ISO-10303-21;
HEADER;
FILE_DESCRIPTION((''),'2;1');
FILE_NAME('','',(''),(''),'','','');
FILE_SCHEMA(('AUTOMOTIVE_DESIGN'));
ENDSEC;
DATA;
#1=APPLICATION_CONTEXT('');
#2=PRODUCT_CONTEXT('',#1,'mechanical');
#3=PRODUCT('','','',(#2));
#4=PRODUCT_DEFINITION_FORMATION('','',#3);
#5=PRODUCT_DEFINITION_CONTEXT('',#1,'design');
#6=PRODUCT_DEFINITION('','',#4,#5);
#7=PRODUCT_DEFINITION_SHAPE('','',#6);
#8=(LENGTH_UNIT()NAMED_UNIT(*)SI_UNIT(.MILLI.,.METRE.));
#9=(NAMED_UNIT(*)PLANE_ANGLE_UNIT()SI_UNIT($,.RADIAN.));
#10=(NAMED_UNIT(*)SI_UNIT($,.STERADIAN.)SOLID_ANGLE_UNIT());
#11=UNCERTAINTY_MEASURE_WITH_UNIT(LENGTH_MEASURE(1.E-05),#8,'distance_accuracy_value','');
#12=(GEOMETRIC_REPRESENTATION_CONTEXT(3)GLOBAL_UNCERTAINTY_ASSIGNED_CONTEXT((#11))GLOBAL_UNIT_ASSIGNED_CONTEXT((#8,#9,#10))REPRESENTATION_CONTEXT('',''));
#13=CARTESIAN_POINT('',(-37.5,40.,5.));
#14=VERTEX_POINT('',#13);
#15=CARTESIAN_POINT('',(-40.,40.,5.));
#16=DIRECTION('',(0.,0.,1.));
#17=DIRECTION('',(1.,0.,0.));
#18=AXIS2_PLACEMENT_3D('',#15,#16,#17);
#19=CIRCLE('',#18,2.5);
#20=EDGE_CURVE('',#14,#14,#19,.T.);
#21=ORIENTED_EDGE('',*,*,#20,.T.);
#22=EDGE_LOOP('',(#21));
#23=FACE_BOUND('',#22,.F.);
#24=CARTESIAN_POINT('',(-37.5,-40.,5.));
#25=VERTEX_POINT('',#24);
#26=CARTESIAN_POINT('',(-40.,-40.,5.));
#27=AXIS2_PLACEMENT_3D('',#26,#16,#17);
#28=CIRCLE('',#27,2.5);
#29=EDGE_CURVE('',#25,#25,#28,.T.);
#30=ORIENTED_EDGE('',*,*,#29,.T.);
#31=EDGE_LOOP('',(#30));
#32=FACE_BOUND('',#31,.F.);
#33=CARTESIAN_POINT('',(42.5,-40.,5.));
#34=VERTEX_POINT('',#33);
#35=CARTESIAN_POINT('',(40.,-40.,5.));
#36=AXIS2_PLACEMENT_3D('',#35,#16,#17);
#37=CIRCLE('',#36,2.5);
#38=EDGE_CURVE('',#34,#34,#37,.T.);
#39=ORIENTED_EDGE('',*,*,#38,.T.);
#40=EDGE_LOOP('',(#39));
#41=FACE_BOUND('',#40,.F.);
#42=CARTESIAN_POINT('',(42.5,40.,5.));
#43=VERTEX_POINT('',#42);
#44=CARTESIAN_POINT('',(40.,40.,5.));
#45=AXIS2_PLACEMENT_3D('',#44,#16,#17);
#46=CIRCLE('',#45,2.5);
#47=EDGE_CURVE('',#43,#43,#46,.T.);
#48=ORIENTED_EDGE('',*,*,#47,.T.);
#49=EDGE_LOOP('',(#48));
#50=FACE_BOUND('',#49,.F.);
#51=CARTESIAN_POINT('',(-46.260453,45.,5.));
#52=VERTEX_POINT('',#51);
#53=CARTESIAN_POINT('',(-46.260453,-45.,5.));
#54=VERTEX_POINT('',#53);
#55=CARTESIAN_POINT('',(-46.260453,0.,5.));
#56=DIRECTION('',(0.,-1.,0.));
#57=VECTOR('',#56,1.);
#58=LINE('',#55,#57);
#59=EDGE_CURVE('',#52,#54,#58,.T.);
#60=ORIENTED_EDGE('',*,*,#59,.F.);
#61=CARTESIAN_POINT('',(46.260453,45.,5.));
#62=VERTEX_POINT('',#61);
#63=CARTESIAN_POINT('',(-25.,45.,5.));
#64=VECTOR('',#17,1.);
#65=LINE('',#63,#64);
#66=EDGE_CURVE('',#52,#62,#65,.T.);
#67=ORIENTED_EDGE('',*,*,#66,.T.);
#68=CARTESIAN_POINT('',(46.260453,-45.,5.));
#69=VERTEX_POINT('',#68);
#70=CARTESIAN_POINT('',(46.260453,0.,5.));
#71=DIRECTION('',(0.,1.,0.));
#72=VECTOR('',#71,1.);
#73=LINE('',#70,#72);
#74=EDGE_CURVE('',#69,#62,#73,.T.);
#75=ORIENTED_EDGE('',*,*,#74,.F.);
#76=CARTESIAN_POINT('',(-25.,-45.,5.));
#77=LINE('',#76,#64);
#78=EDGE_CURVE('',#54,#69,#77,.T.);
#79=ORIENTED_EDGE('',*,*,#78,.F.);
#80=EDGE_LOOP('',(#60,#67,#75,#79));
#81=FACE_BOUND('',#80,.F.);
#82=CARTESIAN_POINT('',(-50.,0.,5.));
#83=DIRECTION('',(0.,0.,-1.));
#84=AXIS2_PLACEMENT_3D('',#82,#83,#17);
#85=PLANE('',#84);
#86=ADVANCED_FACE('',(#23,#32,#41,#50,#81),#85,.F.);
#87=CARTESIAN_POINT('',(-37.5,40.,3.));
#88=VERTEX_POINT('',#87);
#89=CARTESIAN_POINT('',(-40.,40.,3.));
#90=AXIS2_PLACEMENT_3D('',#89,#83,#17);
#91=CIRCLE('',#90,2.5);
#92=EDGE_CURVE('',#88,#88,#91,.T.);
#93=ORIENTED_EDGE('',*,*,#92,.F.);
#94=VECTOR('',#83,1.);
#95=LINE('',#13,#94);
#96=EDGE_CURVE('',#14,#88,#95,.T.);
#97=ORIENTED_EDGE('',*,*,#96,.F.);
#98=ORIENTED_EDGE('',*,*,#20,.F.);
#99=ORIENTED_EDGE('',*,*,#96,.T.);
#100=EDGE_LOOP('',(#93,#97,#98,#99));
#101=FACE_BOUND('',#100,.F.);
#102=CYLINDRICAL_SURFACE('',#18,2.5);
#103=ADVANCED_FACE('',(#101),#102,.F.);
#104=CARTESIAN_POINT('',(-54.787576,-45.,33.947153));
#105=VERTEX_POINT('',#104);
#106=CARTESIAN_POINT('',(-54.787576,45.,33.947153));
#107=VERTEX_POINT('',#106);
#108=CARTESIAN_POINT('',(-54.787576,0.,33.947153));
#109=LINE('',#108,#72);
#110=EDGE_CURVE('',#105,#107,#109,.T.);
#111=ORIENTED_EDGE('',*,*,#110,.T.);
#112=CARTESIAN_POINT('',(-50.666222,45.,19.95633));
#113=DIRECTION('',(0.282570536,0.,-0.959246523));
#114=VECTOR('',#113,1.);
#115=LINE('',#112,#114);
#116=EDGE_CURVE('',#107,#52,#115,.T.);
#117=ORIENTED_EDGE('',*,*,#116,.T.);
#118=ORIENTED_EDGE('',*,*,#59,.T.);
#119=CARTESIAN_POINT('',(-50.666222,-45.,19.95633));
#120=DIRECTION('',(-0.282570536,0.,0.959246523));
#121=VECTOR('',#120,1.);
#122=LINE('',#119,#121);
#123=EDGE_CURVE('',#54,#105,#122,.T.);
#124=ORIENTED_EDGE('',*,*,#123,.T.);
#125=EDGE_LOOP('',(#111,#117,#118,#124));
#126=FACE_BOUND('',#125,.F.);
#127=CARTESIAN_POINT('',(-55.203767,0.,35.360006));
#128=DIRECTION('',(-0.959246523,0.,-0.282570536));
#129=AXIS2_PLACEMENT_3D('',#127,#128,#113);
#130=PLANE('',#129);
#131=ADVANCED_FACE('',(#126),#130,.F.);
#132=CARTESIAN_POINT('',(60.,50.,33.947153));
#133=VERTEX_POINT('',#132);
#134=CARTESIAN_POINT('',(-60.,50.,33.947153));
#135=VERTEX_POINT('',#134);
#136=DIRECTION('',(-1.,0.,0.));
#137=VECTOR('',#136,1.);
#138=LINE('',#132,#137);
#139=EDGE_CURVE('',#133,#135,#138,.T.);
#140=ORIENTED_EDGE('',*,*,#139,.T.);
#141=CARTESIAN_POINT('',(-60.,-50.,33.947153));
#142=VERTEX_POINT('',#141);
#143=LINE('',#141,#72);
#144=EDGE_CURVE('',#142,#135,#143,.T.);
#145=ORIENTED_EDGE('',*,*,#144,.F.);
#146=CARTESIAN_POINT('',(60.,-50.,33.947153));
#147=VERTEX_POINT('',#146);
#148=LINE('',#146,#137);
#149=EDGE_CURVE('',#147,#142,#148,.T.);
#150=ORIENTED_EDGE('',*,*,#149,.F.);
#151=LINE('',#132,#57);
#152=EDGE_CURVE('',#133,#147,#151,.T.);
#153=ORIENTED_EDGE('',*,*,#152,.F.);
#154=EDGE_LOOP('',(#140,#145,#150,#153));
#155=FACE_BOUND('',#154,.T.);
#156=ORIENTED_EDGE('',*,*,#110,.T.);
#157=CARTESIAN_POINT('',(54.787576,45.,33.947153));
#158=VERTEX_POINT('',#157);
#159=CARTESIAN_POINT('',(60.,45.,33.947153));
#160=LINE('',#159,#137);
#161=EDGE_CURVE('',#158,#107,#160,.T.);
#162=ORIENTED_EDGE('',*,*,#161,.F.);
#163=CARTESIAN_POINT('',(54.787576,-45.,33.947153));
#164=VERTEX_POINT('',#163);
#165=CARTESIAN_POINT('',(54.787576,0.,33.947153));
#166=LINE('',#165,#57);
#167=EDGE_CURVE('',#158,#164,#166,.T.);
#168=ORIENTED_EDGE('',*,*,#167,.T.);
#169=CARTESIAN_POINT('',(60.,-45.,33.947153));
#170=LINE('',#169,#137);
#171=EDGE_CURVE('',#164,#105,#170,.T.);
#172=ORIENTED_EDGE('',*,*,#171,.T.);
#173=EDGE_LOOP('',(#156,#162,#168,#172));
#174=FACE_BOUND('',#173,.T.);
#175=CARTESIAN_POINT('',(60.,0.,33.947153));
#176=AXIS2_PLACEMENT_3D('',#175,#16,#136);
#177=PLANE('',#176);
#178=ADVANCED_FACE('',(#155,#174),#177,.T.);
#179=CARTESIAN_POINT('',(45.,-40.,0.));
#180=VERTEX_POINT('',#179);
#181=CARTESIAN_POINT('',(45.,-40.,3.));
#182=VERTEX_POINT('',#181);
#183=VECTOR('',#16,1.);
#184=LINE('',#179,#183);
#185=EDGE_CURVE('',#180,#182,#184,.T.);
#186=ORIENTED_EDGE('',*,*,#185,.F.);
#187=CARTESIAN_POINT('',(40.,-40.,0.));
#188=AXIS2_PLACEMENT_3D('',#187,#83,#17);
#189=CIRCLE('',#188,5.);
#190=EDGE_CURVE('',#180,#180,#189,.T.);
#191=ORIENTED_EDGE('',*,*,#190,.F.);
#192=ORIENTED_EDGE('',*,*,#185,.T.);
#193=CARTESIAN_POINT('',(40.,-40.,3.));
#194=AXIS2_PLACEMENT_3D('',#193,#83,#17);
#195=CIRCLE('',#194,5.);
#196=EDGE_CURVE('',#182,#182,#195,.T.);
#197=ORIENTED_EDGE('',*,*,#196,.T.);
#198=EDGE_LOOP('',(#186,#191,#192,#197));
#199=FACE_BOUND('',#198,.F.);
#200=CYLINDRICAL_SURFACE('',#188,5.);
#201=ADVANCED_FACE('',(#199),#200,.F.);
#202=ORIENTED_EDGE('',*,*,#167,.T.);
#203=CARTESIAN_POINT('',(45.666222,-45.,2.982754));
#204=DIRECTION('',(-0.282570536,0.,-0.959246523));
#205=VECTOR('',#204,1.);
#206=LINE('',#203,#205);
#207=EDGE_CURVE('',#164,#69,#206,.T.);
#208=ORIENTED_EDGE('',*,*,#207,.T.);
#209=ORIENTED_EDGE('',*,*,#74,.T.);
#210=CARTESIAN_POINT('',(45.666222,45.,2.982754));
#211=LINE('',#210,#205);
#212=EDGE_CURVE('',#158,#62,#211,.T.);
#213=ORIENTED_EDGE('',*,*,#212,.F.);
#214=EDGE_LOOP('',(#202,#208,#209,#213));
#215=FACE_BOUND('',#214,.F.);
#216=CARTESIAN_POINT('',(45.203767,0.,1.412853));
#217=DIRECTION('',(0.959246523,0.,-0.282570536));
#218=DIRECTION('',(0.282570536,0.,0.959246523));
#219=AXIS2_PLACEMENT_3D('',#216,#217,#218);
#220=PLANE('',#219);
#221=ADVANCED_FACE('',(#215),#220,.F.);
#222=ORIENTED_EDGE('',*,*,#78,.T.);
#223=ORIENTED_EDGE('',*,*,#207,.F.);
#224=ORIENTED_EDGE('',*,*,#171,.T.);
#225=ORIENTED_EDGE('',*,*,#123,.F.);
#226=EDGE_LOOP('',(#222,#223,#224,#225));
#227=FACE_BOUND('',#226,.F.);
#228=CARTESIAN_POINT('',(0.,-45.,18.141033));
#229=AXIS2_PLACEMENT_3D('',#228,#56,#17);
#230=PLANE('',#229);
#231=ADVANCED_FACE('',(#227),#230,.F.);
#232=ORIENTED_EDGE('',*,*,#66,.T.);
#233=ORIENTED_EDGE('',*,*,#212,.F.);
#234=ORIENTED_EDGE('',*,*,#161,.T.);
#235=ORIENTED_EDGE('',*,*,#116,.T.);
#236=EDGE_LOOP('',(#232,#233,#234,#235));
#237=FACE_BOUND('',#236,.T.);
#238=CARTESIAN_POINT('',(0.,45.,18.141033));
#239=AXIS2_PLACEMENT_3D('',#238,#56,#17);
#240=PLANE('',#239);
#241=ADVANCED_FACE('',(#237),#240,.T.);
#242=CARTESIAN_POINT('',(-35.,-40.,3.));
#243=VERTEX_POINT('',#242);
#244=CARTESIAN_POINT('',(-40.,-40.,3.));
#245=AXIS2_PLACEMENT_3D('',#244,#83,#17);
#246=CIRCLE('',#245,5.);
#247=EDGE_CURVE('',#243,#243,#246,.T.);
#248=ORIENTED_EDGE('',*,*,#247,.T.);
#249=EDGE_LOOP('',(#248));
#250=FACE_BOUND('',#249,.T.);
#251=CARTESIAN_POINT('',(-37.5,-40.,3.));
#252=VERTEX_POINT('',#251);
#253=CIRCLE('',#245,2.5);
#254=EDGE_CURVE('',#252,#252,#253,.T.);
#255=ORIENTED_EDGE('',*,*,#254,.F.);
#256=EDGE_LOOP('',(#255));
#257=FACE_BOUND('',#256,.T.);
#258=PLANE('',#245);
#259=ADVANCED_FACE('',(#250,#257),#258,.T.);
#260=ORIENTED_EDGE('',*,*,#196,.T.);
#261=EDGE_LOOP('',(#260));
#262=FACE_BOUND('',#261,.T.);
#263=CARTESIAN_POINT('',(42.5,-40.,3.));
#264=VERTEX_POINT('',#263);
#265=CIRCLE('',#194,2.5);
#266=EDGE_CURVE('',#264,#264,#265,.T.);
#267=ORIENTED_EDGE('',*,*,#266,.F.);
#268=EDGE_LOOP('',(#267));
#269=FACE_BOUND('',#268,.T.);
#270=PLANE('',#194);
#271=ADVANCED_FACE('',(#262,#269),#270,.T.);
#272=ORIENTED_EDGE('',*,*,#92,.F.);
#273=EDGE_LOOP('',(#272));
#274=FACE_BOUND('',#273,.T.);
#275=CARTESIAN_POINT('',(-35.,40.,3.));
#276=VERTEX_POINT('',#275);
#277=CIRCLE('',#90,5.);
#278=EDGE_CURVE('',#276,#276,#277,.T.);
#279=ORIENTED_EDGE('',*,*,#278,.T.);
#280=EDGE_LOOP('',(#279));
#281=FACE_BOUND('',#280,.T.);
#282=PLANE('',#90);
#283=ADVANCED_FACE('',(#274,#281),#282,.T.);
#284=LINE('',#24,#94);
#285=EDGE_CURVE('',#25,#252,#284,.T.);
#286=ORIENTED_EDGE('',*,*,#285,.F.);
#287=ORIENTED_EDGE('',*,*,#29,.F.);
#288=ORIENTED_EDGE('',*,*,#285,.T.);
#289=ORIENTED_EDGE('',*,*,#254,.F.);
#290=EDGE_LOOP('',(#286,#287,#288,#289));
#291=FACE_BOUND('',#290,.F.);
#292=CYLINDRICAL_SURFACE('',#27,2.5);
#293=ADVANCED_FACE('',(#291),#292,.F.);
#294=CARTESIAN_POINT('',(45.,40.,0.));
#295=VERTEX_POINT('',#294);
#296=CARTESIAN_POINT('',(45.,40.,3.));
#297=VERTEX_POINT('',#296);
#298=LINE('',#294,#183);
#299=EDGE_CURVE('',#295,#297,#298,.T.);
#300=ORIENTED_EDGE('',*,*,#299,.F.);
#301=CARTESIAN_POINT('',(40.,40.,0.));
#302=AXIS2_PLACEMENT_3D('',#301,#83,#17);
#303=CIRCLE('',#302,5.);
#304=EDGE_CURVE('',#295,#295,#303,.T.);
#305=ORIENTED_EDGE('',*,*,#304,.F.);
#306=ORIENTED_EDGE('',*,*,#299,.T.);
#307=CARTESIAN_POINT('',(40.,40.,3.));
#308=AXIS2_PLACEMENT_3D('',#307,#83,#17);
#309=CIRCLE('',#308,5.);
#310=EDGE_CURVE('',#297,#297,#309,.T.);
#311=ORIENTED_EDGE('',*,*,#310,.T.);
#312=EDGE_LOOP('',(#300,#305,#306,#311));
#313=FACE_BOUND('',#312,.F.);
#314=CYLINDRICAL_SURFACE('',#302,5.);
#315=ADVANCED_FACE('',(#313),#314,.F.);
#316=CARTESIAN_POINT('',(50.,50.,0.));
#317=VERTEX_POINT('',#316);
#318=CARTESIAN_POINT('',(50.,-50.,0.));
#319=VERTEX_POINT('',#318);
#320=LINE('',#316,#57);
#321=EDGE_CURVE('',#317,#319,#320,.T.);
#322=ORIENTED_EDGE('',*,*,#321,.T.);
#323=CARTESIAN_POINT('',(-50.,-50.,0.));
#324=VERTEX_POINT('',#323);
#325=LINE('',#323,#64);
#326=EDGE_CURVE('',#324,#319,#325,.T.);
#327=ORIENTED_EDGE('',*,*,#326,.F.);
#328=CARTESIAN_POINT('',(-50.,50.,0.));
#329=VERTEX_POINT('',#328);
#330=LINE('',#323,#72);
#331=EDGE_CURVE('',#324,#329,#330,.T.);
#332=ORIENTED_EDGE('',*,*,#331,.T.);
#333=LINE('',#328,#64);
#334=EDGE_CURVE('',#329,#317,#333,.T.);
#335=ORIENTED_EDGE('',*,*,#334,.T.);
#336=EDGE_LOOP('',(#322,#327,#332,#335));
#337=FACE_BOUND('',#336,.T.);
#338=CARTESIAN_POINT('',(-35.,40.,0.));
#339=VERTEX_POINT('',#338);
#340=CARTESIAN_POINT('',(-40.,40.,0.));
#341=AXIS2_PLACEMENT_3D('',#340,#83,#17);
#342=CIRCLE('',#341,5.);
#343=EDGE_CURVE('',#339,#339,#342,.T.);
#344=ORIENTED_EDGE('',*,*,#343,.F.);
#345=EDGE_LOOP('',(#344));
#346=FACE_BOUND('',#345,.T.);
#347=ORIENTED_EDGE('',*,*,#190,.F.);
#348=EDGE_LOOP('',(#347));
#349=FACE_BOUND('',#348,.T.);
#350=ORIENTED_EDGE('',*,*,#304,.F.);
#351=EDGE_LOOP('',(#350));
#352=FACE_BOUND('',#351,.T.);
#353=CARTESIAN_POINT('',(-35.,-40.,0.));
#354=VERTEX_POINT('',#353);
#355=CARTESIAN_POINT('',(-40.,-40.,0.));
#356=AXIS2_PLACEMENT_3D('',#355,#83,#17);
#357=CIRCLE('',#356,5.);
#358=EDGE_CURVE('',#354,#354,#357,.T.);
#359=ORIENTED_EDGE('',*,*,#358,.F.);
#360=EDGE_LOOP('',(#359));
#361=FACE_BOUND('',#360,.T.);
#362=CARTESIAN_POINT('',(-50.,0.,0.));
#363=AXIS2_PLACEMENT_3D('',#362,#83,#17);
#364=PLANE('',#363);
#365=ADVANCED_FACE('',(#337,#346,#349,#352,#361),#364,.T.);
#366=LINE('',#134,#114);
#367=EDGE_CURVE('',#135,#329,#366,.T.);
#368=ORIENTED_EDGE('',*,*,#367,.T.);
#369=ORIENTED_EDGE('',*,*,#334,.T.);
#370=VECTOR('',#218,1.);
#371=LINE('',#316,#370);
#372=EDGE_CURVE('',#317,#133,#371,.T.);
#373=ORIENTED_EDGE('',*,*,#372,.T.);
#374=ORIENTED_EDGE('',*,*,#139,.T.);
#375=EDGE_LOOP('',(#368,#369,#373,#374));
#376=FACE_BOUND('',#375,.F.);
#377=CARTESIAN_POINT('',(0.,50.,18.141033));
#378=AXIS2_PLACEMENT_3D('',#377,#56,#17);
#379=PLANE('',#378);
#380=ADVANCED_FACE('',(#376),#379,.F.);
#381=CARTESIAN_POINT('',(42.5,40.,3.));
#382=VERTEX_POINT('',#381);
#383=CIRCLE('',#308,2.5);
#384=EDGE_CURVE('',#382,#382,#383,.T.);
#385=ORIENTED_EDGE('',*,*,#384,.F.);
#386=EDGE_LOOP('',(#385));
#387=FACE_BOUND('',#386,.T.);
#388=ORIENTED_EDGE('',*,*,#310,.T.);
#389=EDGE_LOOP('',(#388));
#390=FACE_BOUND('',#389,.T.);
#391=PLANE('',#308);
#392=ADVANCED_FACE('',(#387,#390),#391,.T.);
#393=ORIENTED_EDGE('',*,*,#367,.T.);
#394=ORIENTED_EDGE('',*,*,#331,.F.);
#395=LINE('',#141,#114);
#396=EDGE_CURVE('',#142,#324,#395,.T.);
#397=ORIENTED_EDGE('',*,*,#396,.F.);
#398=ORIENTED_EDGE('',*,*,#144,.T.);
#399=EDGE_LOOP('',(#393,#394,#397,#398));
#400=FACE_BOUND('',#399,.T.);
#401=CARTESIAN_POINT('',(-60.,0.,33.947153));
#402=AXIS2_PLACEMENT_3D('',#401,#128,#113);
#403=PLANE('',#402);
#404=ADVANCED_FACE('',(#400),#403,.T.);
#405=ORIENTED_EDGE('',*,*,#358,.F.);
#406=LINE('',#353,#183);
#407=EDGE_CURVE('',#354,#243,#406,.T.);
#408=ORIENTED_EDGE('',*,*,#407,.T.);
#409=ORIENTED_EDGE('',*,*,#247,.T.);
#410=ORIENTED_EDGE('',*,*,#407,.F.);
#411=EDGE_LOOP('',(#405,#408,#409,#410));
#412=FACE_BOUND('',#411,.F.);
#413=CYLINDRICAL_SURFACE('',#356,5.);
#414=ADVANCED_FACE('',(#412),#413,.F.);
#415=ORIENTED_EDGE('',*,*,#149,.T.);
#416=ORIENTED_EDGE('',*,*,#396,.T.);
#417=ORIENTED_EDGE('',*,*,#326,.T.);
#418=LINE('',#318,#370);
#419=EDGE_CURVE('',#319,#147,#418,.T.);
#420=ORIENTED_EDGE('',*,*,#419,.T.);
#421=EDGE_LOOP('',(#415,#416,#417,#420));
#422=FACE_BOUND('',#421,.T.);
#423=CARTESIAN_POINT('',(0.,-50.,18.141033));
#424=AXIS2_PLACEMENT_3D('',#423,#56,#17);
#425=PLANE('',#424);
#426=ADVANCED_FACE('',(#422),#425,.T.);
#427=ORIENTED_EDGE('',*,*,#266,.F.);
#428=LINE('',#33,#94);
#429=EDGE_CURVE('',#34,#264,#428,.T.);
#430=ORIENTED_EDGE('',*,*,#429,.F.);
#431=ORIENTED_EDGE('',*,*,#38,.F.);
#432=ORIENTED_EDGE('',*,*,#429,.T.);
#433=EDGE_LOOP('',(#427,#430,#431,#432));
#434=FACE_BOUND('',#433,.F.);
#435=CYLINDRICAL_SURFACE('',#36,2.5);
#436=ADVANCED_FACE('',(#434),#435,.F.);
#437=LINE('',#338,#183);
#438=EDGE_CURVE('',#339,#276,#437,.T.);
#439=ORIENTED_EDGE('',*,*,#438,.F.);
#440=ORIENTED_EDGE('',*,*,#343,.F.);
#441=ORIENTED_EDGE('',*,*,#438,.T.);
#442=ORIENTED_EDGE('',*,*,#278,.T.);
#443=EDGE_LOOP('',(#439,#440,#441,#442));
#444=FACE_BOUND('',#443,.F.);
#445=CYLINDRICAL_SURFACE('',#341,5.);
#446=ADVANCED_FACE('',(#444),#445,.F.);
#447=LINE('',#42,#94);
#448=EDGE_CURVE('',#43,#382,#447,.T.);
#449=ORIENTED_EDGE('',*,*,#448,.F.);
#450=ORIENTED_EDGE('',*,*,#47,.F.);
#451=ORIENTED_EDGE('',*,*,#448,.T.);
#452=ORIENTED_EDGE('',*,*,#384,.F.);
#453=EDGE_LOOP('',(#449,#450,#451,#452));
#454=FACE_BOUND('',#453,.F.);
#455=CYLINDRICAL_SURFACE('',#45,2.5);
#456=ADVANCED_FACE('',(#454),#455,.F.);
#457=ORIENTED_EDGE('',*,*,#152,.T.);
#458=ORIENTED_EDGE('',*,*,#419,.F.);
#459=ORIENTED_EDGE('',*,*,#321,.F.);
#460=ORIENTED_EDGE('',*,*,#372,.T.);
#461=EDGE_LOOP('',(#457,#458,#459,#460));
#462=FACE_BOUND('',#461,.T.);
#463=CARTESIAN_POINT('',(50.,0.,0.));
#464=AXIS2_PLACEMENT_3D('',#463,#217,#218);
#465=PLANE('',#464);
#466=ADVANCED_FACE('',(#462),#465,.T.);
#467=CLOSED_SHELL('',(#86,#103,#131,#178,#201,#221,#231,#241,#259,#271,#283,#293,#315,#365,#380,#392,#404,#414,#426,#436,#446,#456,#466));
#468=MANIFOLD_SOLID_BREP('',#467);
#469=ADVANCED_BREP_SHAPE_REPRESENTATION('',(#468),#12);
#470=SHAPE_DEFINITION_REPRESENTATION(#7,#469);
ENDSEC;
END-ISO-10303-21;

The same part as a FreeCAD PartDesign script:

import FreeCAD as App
import Part
import Sketcher

V = App.Vector


def faces_at(feature, points):
    """Names of the faces that lie closest to the given points."""
    faces = feature.Shape.Faces
    near = lambda p: min(range(len(faces)), key=lambda i: faces[i].distToShape(Part.Vertex(*p))[0])
    return sorted({f"Face{near(p) + 1}" for p in points})


def add_polygon(sketch, points):
    """Adds a closed chain of lines whose ends are joined by coincident constraints."""
    first, n = sketch.GeometryCount, len(points)
    for a, b in zip(points, points[1:] + points[:1]):
        sketch.addGeometry(Part.LineSegment(App.Vector(*a, 0), App.Vector(*b, 0)), False)
    for i in range(n):
        sketch.addConstraint(Sketcher.Constraint("Coincident", first + i, 2, first + (i + 1) % n, 1))

doc = App.newDocument("Part")
params = doc.addObject("Spreadsheet::Sheet", "Params")
for row, (alias, value) in enumerate([
    ("sketch1_width", "100 mm"),
    ("sketch1_width2", "120 mm"),
    ("pad1_length", "50 mm"),
    ("pad1_length2", "50 mm"),
    ("thickness_wall", "5 mm"),
    ("sketch2_diameter", "5 mm"),
    ("sketch3_diameter", "10 mm"),
    ("sketch3_diameter2", "5 mm"),
    ("pocket2_length", "3 mm"),
], start=1):
    params.set(f"A{row}", alias)
    params.set(f"B{row}", "=" + value)
    params.setAlias(f"B{row}", alias)

body = doc.addObject("PartDesign::Body", "Body")

# Sketch on XZ plane
sketch1 = body.newObject("Sketcher::SketchObject", "Sketch")
sketch1.AttachmentSupport = (doc.getObject("XZ_Plane"), [""])
sketch1.MapMode = "FlatFace"
add_polygon(sketch1, [(-50, 0), (50, 0), (60, 34), (-60, 34)])  # lines 0-3
sketch1.addConstraint([
    Sketcher.Constraint("Horizontal", 0),
    Sketcher.Constraint("Horizontal", 2),
    Sketcher.Constraint("Symmetric", 0, 2, 3, 2, -1, 1),
    Sketcher.Constraint("Equal", 1, 3),
    Sketcher.Constraint("DistanceX", 0, 1, 0, 2, 100.0),
    Sketcher.Constraint("DistanceX", 2, 2, 2, 1, 120.0),
    Sketcher.Constraint("Distance", 1, 35.389394),
])
sketch1.setExpression("Constraints[8]", "Params.sketch1_width")
sketch1.setExpression("Constraints[9]", "Params.sketch1_width2")
pad1 = body.newObject("PartDesign::Pad", "Pad")
pad1.Profile = sketch1
pad1.Type = "TwoLengths"
pad1.setExpression("Length", "Params.pad1_length")
pad1.setExpression("Length2", "Params.pad1_length2")
doc.recompute()

thickness = body.newObject("PartDesign::Thickness", "Thickness")
thickness.Base = (pad1, faces_at(pad1, [(0, 0, 33.947)]))
thickness.setExpression("Value", "Params.thickness_wall")
thickness.Reversed = True
thickness.Join = "Arc"

# Sketch on XY plane
sketch2 = body.newObject("Sketcher::SketchObject", "Sketch001")
sketch2.AttachmentSupport = (doc.getObject("XY_Plane"), [""])
sketch2.MapMode = "FlatFace"
sketch2.AttachmentOffset = App.Placement(V(0, 0, 5), App.Rotation())
sketch2.addGeometry([
    Part.Circle(V(-40, 40, 0), V(0, 0, 1), 2.5),
    Part.Circle(V(-40, -40, 0), V(0, 0, 1), 2.5),
    Part.Circle(V(40, -40, 0), V(0, 0, 1), 2.5),
    Part.Circle(V(40, 40, 0), V(0, 0, 1), 2.5),
], False)
sketch2.addConstraint([
    Sketcher.Constraint("Equal", 0, 1),
    Sketcher.Constraint("Equal", 1, 2),
    Sketcher.Constraint("Equal", 2, 3),
    Sketcher.Constraint("Symmetric", 0, 3, 2, 3, -1, 1),
    Sketcher.Constraint("Symmetric", 1, 3, 3, 3, -1, 1),
    Sketcher.Constraint("Symmetric", 1, 3, 2, 3, -2),
    Sketcher.Constraint("Diameter", 0, 5.0),
    Sketcher.Constraint("DistanceX", 0, 3, -1, 1, 40.0),
    Sketcher.Constraint("DistanceY", -1, 1, 0, 3, 40.0),
])
sketch2.setExpression("Constraints[6]", "Params.sketch2_diameter")
pocket1 = body.newObject("PartDesign::Pocket", "Pocket")
pocket1.Profile = sketch2
pocket1.Type = "ThroughAll"

# Sketch on XY plane
sketch3 = body.newObject("Sketcher::SketchObject", "Sketch002")
sketch3.AttachmentSupport = (doc.getObject("XY_Plane"), [""])
sketch3.MapMode = "FlatFace"
sketch3.addGeometry([
    Part.Circle(V(-40, -40, 0), V(0, 0, 1), 5),  # 0
    Part.Circle(V(-40, -40, 0), V(0, 0, 1), 2.5),  # 1
    Part.Circle(V(40, -40, 0), V(0, 0, 1), 5),  # 2
    Part.Circle(V(40, -40, 0), V(0, 0, 1), 2.5),  # 3
    Part.Circle(V(40, 40, 0), V(0, 0, 1), 5),  # 4
    Part.Circle(V(40, 40, 0), V(0, 0, 1), 2.5),  # 5
    Part.Circle(V(-40, 40, 0), V(0, 0, 1), 5),  # 6
    Part.Circle(V(-40, 40, 0), V(0, 0, 1), 2.5),  # 7
], False)
sketch3.addConstraint([
    Sketcher.Constraint("Coincident", 1, 3, 0, 3),
    Sketcher.Constraint("Coincident", 3, 3, 2, 3),
    Sketcher.Constraint("Coincident", 5, 3, 4, 3),
    Sketcher.Constraint("Coincident", 7, 3, 6, 3),
    Sketcher.Constraint("Equal", 0, 2),
    Sketcher.Constraint("Equal", 1, 3),
    Sketcher.Constraint("Equal", 2, 4),
    Sketcher.Constraint("Equal", 3, 5),
    Sketcher.Constraint("Equal", 4, 6),
    Sketcher.Constraint("Equal", 5, 7),
    Sketcher.Constraint("Symmetric", 0, 3, 4, 3, -1, 1),
    Sketcher.Constraint("Symmetric", 2, 3, 6, 3, -1, 1),
    Sketcher.Constraint("Symmetric", 0, 3, 2, 3, -2),
    Sketcher.Constraint("Diameter", 0, 10.0),
    Sketcher.Constraint("Diameter", 1, 5.0),
    Sketcher.Constraint("DistanceX", 0, 3, -1, 1, 40.0),
    Sketcher.Constraint("DistanceY", 0, 3, -1, 1, 40.0),
])
sketch3.setExpression("Constraints[13]", "Params.sketch3_diameter")
sketch3.setExpression("Constraints[14]", "Params.sketch3_diameter2")
pocket2 = body.newObject("PartDesign::Pocket", "Pocket001")
pocket2.Profile = sketch3
pocket2.setExpression("Length", "Params.pocket2_length")
pocket2.Reversed = True

doc.recompute()
